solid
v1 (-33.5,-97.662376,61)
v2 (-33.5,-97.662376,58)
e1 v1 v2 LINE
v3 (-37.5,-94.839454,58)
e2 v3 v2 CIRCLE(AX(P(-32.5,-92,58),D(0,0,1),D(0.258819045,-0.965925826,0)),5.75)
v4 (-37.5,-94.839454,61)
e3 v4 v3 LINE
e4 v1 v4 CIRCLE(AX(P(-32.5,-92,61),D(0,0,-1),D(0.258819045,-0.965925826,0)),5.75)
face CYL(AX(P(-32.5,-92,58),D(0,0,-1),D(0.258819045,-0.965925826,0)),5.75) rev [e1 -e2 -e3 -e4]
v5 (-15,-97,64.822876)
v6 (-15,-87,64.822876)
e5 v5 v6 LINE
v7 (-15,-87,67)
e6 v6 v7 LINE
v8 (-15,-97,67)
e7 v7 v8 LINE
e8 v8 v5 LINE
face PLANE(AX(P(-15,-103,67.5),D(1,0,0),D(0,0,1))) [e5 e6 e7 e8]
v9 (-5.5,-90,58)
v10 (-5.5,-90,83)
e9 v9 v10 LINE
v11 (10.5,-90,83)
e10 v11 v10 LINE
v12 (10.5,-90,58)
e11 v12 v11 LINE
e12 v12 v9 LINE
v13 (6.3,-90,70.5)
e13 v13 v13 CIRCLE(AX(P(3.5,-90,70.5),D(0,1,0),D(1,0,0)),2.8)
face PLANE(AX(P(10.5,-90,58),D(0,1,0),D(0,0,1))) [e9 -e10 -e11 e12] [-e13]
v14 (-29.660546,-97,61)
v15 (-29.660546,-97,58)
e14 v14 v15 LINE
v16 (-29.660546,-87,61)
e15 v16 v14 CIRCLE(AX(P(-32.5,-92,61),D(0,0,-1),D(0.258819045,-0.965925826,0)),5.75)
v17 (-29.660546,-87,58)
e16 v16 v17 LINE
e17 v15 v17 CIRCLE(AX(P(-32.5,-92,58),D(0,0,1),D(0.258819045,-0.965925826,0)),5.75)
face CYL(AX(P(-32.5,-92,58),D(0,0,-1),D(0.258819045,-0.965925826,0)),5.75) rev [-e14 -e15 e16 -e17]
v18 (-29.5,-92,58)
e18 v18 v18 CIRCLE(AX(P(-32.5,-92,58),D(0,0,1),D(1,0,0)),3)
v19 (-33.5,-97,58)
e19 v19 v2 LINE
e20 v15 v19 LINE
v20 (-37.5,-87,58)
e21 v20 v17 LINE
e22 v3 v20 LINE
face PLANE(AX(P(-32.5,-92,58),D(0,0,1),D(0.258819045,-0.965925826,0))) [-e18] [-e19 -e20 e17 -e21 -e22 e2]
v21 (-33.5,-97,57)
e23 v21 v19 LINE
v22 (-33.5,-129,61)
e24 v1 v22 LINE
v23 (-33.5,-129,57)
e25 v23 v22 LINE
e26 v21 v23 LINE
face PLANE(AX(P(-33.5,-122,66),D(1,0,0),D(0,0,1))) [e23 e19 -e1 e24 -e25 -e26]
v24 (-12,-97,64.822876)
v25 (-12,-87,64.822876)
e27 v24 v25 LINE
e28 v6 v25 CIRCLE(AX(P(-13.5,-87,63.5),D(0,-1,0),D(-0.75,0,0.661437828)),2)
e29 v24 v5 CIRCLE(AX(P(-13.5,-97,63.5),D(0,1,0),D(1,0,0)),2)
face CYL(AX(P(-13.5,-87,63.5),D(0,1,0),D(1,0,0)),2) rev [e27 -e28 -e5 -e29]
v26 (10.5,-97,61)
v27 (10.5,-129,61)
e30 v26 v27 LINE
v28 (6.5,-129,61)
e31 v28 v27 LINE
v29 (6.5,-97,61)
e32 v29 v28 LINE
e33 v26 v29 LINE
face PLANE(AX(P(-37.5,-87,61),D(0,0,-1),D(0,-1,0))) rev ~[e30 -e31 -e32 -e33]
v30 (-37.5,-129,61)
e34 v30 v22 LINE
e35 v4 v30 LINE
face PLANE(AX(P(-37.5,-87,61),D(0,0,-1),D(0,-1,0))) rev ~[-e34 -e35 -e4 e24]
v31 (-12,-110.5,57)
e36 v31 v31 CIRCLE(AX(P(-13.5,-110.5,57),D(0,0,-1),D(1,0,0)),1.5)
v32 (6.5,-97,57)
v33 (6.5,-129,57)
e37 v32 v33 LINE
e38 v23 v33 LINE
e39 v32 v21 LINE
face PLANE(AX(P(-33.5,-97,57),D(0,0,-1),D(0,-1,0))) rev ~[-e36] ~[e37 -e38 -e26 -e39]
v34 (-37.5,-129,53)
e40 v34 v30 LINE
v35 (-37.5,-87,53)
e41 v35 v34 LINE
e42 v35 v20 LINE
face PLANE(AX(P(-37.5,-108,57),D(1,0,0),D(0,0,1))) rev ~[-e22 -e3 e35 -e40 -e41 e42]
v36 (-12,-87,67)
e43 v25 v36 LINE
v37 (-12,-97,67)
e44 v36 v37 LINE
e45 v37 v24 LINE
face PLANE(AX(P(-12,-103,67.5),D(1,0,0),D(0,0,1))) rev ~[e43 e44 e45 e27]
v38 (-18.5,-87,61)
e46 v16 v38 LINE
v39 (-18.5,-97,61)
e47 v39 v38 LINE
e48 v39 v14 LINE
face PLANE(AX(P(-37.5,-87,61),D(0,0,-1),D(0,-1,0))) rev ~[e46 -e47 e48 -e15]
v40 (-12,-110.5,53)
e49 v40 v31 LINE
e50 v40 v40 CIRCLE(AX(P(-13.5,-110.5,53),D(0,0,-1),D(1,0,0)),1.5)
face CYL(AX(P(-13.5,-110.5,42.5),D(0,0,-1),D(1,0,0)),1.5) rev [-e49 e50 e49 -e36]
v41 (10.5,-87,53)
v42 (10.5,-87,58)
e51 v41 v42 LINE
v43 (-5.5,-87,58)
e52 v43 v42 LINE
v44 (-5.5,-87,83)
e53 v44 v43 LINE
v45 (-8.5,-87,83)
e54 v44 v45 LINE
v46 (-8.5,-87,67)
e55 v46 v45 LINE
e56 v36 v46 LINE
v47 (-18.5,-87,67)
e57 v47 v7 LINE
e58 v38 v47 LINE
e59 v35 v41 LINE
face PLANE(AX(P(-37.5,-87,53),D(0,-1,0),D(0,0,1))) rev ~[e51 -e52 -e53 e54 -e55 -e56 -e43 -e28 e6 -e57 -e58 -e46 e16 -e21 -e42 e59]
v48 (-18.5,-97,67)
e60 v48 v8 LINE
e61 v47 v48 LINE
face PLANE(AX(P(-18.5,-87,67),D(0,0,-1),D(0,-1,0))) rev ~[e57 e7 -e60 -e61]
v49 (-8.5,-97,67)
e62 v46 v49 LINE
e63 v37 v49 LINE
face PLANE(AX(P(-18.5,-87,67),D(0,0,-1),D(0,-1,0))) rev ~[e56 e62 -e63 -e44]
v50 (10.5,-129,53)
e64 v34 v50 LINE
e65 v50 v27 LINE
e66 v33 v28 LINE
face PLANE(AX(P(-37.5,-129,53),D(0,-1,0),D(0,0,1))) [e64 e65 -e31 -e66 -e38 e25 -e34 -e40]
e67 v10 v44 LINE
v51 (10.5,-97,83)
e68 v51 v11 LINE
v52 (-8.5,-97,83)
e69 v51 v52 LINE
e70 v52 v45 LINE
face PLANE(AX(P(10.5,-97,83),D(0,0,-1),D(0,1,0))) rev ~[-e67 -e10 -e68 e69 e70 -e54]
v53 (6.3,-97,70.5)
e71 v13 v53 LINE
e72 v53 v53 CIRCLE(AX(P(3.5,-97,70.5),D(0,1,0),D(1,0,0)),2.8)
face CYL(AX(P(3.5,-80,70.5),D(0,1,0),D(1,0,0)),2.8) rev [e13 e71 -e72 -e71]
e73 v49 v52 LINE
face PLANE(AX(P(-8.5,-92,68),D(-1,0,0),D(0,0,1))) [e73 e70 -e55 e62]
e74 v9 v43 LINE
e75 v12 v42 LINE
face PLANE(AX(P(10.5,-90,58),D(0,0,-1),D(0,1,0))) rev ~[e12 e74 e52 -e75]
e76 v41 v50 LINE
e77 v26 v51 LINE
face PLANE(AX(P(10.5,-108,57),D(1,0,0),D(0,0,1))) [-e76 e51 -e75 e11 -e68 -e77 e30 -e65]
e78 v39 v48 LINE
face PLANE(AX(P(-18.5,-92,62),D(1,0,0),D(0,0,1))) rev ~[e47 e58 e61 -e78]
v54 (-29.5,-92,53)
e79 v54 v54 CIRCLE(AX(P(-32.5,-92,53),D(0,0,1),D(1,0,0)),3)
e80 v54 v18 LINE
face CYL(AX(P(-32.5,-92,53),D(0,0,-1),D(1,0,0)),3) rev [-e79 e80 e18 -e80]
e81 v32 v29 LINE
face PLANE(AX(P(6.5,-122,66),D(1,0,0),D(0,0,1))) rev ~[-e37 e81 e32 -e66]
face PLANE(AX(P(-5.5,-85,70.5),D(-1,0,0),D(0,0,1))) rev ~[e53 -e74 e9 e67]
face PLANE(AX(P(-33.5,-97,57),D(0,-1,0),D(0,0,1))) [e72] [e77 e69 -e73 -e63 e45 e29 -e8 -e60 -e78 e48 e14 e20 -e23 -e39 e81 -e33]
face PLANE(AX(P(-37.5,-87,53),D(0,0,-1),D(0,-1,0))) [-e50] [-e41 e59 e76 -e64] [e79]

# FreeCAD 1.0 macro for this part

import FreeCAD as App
import Part
import Sketcher


def add_polygon(sketch, points):
    """Adds a closed chain of lines whose ends are joined by coincident constraints."""
    first, n = sketch.GeometryCount, len(points)
    for a, b in zip(points, points[1:] + points[:1]):
        sketch.addGeometry(Part.LineSegment(App.Vector(*a, 0), App.Vector(*b, 0)), False)
    for i in range(n):
        sketch.addConstraint(Sketcher.Constraint("Coincident", first + i, 2, first + (i + 1) % n, 1))

doc = App.newDocument("Part")
body = doc.addObject("PartDesign::Body", "Body")

# Sketch on YZ plane
sketch1 = body.newObject("Sketcher::SketchObject", "Sketch")
sketch1.AttachmentSupport = (doc.getObject("YZ_Plane"), [""])
sketch1.MapMode = "FlatFace"
sketch1.AttachmentOffset = App.Placement(App.Vector(0, 0, -32.5), App.Rotation())
add_polygon(sketch1, [(-92, 68), (-92, 58), (-84.25, 58), (-84.25, 68)])  # lines 0-3
sketch1.addGeometry(Part.LineSegment(App.Vector(-92, 58, 0), App.Vector(-92, 68, 0)), True)  # axis
sketch1.addConstraint(Sketcher.Constraint("Vertical", 0))
sketch1.addConstraint(Sketcher.Constraint("Horizontal", 1))
sketch1.addConstraint(Sketcher.Constraint("Vertical", 2))
sketch1.addConstraint(Sketcher.Constraint("Horizontal", 3))
sketch1.addConstraint(Sketcher.Constraint("Vertical", 4))
sketch1.addConstraint(Sketcher.Constraint("Coincident", 4, 1, 0, 2))
sketch1.addConstraint(Sketcher.Constraint("Horizontal", 2, 2, 4, 2))
sketch1.addConstraint(Sketcher.Constraint("DistanceY", 0, 2, 0, 1, 10.0))
sketch1.addConstraint(Sketcher.Constraint("DistanceX", 0, 2, -1, 1, 92.0))
sketch1.addConstraint(Sketcher.Constraint("DistanceY", -1, 1, 0, 2, 58.0))
sketch1.addConstraint(Sketcher.Constraint("DistanceX", 1, 1, 1, 2, 7.75))
revolution = body.newObject("PartDesign::Revolution", "Revolution")
revolution.Profile = sketch1
revolution.ReferenceAxis = (sketch1, ["Axis0"])
revolution.Angle = 90
body2 = doc.addObject("PartDesign::Body", "Body001")

# Sketch on XY plane
sketch2 = body2.newObject("Sketcher::SketchObject", "Sketch001")
sketch2.AttachmentSupport = (doc.getObject("XY_Plane001"), [""])
sketch2.MapMode = "FlatFace"
sketch2.addGeometry(Part.Circle(App.Vector(0, 0, 0), App.Vector(0, 0, 1), 5.75), False)
sketch2.addConstraint(Sketcher.Constraint("Coincident", 0, 3, -1, 1))
sketch2.addConstraint(Sketcher.Constraint("Diameter", 0, 11.5))
pad1 = body2.newObject("PartDesign::Pad", "Pad")
pad1.Profile = sketch2
pad1.Length = 10
body3 = doc.addObject("PartDesign::Body", "Body002")
doc.recompute()

body2.Placement = App.Placement(App.Vector(-32.5, -92, 58), App.Rotation(App.Vector(0, 0, 1), 285))
boolean = body3.newObject("PartDesign::Boolean", "Boolean")
boolean.Type = "Fuse"
boolean.addObjects([body2])
body4 = doc.addObject("PartDesign::Body", "Body003")

# Sketch on XY plane
sketch3 = body4.newObject("Sketcher::SketchObject", "Sketch002")
sketch3.AttachmentSupport = (doc.getObject("XY_Plane003"), [""])
sketch3.MapMode = "FlatFace"
sketch3.AttachmentOffset = App.Placement(App.Vector(0, 0, 53), App.Rotation())
sketch3.addGeometry(Part.Circle(App.Vector(-32.5, -92, 0), App.Vector(0, 0, 1), 3), False)
sketch3.addConstraint(Sketcher.Constraint("Diameter", 0, 6.0))
sketch3.addConstraint(Sketcher.Constraint("DistanceY", 0, 3, -1, 1, 92.0))
sketch3.addConstraint(Sketcher.Constraint("DistanceX", 0, 3, -1, 1, 32.5))
pad2 = body4.newObject("PartDesign::Pad", "Pad001")
pad2.Profile = sketch3
pad2.Length = 10
body5 = doc.addObject("PartDesign::Body", "Body004")

# Sketch on XZ plane
sketch4 = body5.newObject("Sketcher::SketchObject", "Sketch003")
sketch4.AttachmentSupport = (doc.getObject("XZ_Plane004"), [""])
sketch4.MapMode = "FlatFace"
sketch4.AttachmentOffset = App.Placement(App.Vector(0, 0, 80), App.Rotation())
sketch4.addGeometry(Part.Circle(App.Vector(3.5, 70.5, 0), App.Vector(0, 0, 1), 2.8), False)
sketch4.addConstraint(Sketcher.Constraint("Diameter", 0, 5.6))
sketch4.addConstraint(Sketcher.Constraint("DistanceX", -1, 1, 0, 3, 3.5))
sketch4.addConstraint(Sketcher.Constraint("DistanceY", -1, 1, 0, 3, 70.5))
pad3 = body5.newObject("PartDesign::Pad", "Pad002")
pad3.Profile = sketch4
pad3.Length = 19
body6 = doc.addObject("PartDesign::Body", "Body005")

# Sketch on YZ plane
sketch5 = body6.newObject("Sketcher::SketchObject", "Sketch004")
sketch5.AttachmentSupport = (doc.getObject("YZ_Plane005"), [""])
sketch5.MapMode = "FlatFace"
sketch5.AttachmentOffset = App.Placement(App.Vector(0, 0, 10.5), App.Rotation())
add_polygon(sketch5, [(-80, 58), (-90, 58), (-90, 83), (-80, 83)])  # lines 0-3
sketch5.addConstraint(Sketcher.Constraint("Horizontal", 0))
sketch5.addConstraint(Sketcher.Constraint("Vertical", 1))
sketch5.addConstraint(Sketcher.Constraint("Horizontal", 2))
sketch5.addConstraint(Sketcher.Constraint("Vertical", 3))
sketch5.addConstraint(Sketcher.Constraint("DistanceX", 0, 2, 0, 1, 10.0))
sketch5.addConstraint(Sketcher.Constraint("DistanceY", 1, 1, 1, 2, 25.0))
sketch5.addConstraint(Sketcher.Constraint("DistanceX", 0, 2, -1, 1, 90.0))
sketch5.addConstraint(Sketcher.Constraint("DistanceY", -1, 1, 0, 2, 58.0))
pad4 = body6.newObject("PartDesign::Pad", "Pad003")
pad4.Profile = sketch5
pad4.Length = 16
pad4.Reversed = True
doc.recompute()

boolean2 = body6.newObject("PartDesign::Boolean", "Boolean001")
boolean2.Type = "Fuse"
boolean2.addObjects([body5])
body7 = doc.addObject("PartDesign::Body", "Body006")

# Sketch on XZ plane
sketch6 = body7.newObject("Sketcher::SketchObject", "Sketch005")
sketch6.AttachmentSupport = (doc.getObject("XZ_Plane006"), [""])
sketch6.MapMode = "FlatFace"
sketch6.AttachmentOffset = App.Placement(App.Vector(0, 0, -87), App.Rotation())
sketch6.addGeometry(Part.Circle(App.Vector(13.5, 63.5, 0), App.Vector(0, 0, 1), 2), False)
sketch6.addConstraint(Sketcher.Constraint("Diameter", 0, 4.0))
sketch6.addConstraint(Sketcher.Constraint("DistanceX", -1, 1, 0, 3, 13.5))
sketch6.addConstraint(Sketcher.Constraint("DistanceY", -1, 1, 0, 3, 63.5))
pad5 = body7.newObject("PartDesign::Pad", "Pad004")
pad5.Profile = sketch6
pad5.Length = 20
pad5.Reversed = True
body8 = doc.addObject("PartDesign::Body", "Body007")

# Sketch on XY plane
sketch7 = body8.newObject("Sketcher::SketchObject", "Sketch006")
sketch7.AttachmentSupport = (doc.getObject("XY_Plane007"), [""])
sketch7.MapMode = "FlatFace"
sketch7.AttachmentOffset = App.Placement(App.Vector(0, 0, 42.5), App.Rotation())
sketch7.addGeometry(Part.Circle(App.Vector(13.5, 110.5, 0), App.Vector(0, 0, 1), 1.5), False)
sketch7.addConstraint(Sketcher.Constraint("Diameter", 0, 3.0))
sketch7.addConstraint(Sketcher.Constraint("DistanceX", -1, 1, 0, 3, 13.5))
sketch7.addConstraint(Sketcher.Constraint("DistanceY", -1, 1, 0, 3, 110.5))
pad6 = body8.newObject("PartDesign::Pad", "Pad005")
pad6.Profile = sketch7
pad6.Length = 42
body9 = doc.addObject("PartDesign::Body", "Body008")

# Sketch on YZ plane
sketch8 = body9.newObject("Sketcher::SketchObject", "Sketch007")
sketch8.AttachmentSupport = (doc.getObject("YZ_Plane008"), [""])
sketch8.MapMode = "FlatFace"
sketch8.AttachmentOffset = App.Placement(App.Vector(0, 0, 33.5), App.Rotation())
add_polygon(sketch8, [(147, 57), (97, 57), (97, 75), (147, 75)])  # lines 0-3
sketch8.addConstraint(Sketcher.Constraint("Horizontal", 0))
sketch8.addConstraint(Sketcher.Constraint("Vertical", 1))
sketch8.addConstraint(Sketcher.Constraint("Horizontal", 2))
sketch8.addConstraint(Sketcher.Constraint("Vertical", 3))
sketch8.addConstraint(Sketcher.Constraint("DistanceX", 0, 2, 0, 1, 50.0))
sketch8.addConstraint(Sketcher.Constraint("DistanceY", 1, 1, 1, 2, 18.0))
sketch8.addConstraint(Sketcher.Constraint("DistanceX", -1, 1, 0, 2, 97.0))
sketch8.addConstraint(Sketcher.Constraint("DistanceY", -1, 1, 0, 2, 57.0))
pad7 = body9.newObject("PartDesign::Pad", "Pad006")
pad7.Profile = sketch8
pad7.Length = 40
pad7.Reversed = True
body10 = doc.addObject("PartDesign::Body", "Body009")

# Sketch on YZ plane
sketch9 = body10.newObject("Sketcher::SketchObject", "Sketch008")
sketch9.AttachmentSupport = (doc.getObject("YZ_Plane009"), [""])
sketch9.MapMode = "FlatFace"
sketch9.AttachmentOffset = App.Placement(App.Vector(0, 0, 15), App.Rotation())
add_polygon(sketch9, [(119, 63), (87, 63), (87, 72), (119, 72)])  # lines 0-3
sketch9.addConstraint(Sketcher.Constraint("Horizontal", 0))
sketch9.addConstraint(Sketcher.Constraint("Vertical", 1))
sketch9.addConstraint(Sketcher.Constraint("Horizontal", 2))
sketch9.addConstraint(Sketcher.Constraint("Vertical", 3))
sketch9.addConstraint(Sketcher.Constraint("DistanceX", 0, 2, 0, 1, 32.0))
sketch9.addConstraint(Sketcher.Constraint("DistanceY", 1, 1, 1, 2, 9.0))
sketch9.addConstraint(Sketcher.Constraint("DistanceX", -1, 1, 0, 2, 87.0))
sketch9.addConstraint(Sketcher.Constraint("DistanceY", -1, 1, 0, 2, 63.0))
pad8 = body10.newObject("PartDesign::Pad", "Pad007")
pad8.Profile = sketch9
pad8.Length = 3
pad8.Reversed = True
doc.recompute()

boolean3 = body10.newObject("PartDesign::Boolean", "Boolean002")
boolean3.Type = "Fuse"
boolean3.addObjects([body7])
doc.recompute()

boolean4 = body10.newObject("PartDesign::Boolean", "Boolean003")
boolean4.Type = "Fuse"
boolean4.addObjects([body8])
doc.recompute()

boolean5 = body10.newObject("PartDesign::Boolean", "Boolean004")
boolean5.Type = "Fuse"
boolean5.addObjects([body9])
body11 = doc.addObject("PartDesign::Body", "Body010")

# Sketch on YZ plane
sketch10 = body11.newObject("Sketcher::SketchObject", "Sketch009")
sketch10.AttachmentSupport = (doc.getObject("YZ_Plane010"), [""])
sketch10.MapMode = "FlatFace"
sketch10.AttachmentOffset = App.Placement(App.Vector(0, 0, 37.5), App.Rotation())
add_polygon(sketch10, [(129, 53), (87, 53), (87, 61), (129, 61)])  # lines 0-3
sketch10.addConstraint(Sketcher.Constraint("Horizontal", 0))
sketch10.addConstraint(Sketcher.Constraint("Vertical", 1))
sketch10.addConstraint(Sketcher.Constraint("Horizontal", 2))
sketch10.addConstraint(Sketcher.Constraint("Vertical", 3))
sketch10.addConstraint(Sketcher.Constraint("DistanceX", 0, 2, 0, 1, 42.0))
sketch10.addConstraint(Sketcher.Constraint("DistanceY", 1, 1, 1, 2, 8.0))
sketch10.addConstraint(Sketcher.Constraint("DistanceX", -1, 1, 0, 2, 87.0))
sketch10.addConstraint(Sketcher.Constraint("DistanceY", -1, 1, 0, 2, 53.0))
pad9 = body11.newObject("PartDesign::Pad", "Pad008")
pad9.Profile = sketch10
pad9.Length = 48
pad9.Reversed = True
body12 = doc.addObject("PartDesign::Body", "Body011")

# Sketch on YZ plane
sketch11 = body12.newObject("Sketcher::SketchObject", "Sketch010")
sketch11.AttachmentSupport = (doc.getObject("YZ_Plane011"), [""])
sketch11.MapMode = "FlatFace"
sketch11.AttachmentOffset = App.Placement(App.Vector(0, 0, 18.5), App.Rotation())
add_polygon(sketch11, [(97, 57), (87, 57), (87, 67), (97, 67)])  # lines 0-3
sketch11.addConstraint(Sketcher.Constraint("Horizontal", 0))
sketch11.addConstraint(Sketcher.Constraint("Vertical", 1))
sketch11.addConstraint(Sketcher.Constraint("Horizontal", 2))
sketch11.addConstraint(Sketcher.Constraint("Vertical", 3))
sketch11.addConstraint(Sketcher.Constraint("Equal", 2, 1))
sketch11.addConstraint(Sketcher.Constraint("DistanceX", 0, 2, 0, 1, 10.0))
sketch11.addConstraint(Sketcher.Constraint("DistanceX", -1, 1, 0, 2, 87.0))
sketch11.addConstraint(Sketcher.Constraint("DistanceY", -1, 1, 0, 2, 57.0))
pad10 = body12.newObject("PartDesign::Pad", "Pad009")
pad10.Profile = sketch11
pad10.Length = 10
pad10.Reversed = True
doc.recompute()

boolean6 = body12.newObject("PartDesign::Boolean", "Boolean005")
boolean6.Type = "Fuse"
boolean6.addObjects([body11])
doc.recompute()

boolean7 = body12.newObject("PartDesign::Boolean", "Boolean006")
boolean7.Type = "Cut"
boolean7.addObjects([body10])
body13 = doc.addObject("PartDesign::Body", "Body012")
doc.recompute()

body12.Placement = App.Placement(App.Vector(0, 0, 0), App.Rotation(App.Vector(0, 0, 1), 180))
boolean8 = body13.newObject("PartDesign::Boolean", "Boolean007")
boolean8.Type = "Fuse"
boolean8.addObjects([body12])
body14 = doc.addObject("PartDesign::Body", "Body013")

# Sketch on YZ plane
sketch12 = body14.newObject("Sketcher::SketchObject", "Sketch011")
sketch12.AttachmentSupport = (doc.getObject("YZ_Plane013"), [""])
sketch12.MapMode = "FlatFace"
sketch12.AttachmentOffset = App.Placement(App.Vector(0, 0, 10.5), App.Rotation())
add_polygon(sketch12, [(-87, 53), (-97, 53), (-97, 83), (-87, 83)])  # lines 0-3
sketch12.addConstraint(Sketcher.Constraint("Horizontal", 0))
sketch12.addConstraint(Sketcher.Constraint("Vertical", 1))
sketch12.addConstraint(Sketcher.Constraint("Horizontal", 2))
sketch12.addConstraint(Sketcher.Constraint("Vertical", 3))
sketch12.addConstraint(Sketcher.Constraint("DistanceX", 0, 2, 0, 1, 10.0))
sketch12.addConstraint(Sketcher.Constraint("DistanceY", 1, 1, 1, 2, 30.0))
sketch12.addConstraint(Sketcher.Constraint("DistanceX", 0, 2, -1, 1, 97.0))
sketch12.addConstraint(Sketcher.Constraint("DistanceY", -1, 1, 0, 2, 53.0))
pad11 = body14.newObject("PartDesign::Pad", "Pad010")
pad11.Profile = sketch12
pad11.Length = 19
pad11.Reversed = True
doc.recompute()

boolean9 = body14.newObject("PartDesign::Boolean", "Boolean008")
boolean9.Type = "Fuse"
boolean9.addObjects([body13])
doc.recompute()

boolean10 = body14.newObject("PartDesign::Boolean", "Boolean009")
boolean10.Type = "Cut"
boolean10.addObjects([body6])
doc.recompute()

boolean11 = body14.newObject("PartDesign::Boolean", "Boolean010")
boolean11.Type = "Cut"
boolean11.addObjects([body4])
doc.recompute()

boolean12 = body14.newObject("PartDesign::Boolean", "Boolean011")
boolean12.Type = "Cut"
boolean12.addObjects([body3])
doc.recompute()

boolean13 = body14.newObject("PartDesign::Boolean", "Boolean012")
boolean13.Type = "Cut"
boolean13.addObjects([body])

doc.recompute()
